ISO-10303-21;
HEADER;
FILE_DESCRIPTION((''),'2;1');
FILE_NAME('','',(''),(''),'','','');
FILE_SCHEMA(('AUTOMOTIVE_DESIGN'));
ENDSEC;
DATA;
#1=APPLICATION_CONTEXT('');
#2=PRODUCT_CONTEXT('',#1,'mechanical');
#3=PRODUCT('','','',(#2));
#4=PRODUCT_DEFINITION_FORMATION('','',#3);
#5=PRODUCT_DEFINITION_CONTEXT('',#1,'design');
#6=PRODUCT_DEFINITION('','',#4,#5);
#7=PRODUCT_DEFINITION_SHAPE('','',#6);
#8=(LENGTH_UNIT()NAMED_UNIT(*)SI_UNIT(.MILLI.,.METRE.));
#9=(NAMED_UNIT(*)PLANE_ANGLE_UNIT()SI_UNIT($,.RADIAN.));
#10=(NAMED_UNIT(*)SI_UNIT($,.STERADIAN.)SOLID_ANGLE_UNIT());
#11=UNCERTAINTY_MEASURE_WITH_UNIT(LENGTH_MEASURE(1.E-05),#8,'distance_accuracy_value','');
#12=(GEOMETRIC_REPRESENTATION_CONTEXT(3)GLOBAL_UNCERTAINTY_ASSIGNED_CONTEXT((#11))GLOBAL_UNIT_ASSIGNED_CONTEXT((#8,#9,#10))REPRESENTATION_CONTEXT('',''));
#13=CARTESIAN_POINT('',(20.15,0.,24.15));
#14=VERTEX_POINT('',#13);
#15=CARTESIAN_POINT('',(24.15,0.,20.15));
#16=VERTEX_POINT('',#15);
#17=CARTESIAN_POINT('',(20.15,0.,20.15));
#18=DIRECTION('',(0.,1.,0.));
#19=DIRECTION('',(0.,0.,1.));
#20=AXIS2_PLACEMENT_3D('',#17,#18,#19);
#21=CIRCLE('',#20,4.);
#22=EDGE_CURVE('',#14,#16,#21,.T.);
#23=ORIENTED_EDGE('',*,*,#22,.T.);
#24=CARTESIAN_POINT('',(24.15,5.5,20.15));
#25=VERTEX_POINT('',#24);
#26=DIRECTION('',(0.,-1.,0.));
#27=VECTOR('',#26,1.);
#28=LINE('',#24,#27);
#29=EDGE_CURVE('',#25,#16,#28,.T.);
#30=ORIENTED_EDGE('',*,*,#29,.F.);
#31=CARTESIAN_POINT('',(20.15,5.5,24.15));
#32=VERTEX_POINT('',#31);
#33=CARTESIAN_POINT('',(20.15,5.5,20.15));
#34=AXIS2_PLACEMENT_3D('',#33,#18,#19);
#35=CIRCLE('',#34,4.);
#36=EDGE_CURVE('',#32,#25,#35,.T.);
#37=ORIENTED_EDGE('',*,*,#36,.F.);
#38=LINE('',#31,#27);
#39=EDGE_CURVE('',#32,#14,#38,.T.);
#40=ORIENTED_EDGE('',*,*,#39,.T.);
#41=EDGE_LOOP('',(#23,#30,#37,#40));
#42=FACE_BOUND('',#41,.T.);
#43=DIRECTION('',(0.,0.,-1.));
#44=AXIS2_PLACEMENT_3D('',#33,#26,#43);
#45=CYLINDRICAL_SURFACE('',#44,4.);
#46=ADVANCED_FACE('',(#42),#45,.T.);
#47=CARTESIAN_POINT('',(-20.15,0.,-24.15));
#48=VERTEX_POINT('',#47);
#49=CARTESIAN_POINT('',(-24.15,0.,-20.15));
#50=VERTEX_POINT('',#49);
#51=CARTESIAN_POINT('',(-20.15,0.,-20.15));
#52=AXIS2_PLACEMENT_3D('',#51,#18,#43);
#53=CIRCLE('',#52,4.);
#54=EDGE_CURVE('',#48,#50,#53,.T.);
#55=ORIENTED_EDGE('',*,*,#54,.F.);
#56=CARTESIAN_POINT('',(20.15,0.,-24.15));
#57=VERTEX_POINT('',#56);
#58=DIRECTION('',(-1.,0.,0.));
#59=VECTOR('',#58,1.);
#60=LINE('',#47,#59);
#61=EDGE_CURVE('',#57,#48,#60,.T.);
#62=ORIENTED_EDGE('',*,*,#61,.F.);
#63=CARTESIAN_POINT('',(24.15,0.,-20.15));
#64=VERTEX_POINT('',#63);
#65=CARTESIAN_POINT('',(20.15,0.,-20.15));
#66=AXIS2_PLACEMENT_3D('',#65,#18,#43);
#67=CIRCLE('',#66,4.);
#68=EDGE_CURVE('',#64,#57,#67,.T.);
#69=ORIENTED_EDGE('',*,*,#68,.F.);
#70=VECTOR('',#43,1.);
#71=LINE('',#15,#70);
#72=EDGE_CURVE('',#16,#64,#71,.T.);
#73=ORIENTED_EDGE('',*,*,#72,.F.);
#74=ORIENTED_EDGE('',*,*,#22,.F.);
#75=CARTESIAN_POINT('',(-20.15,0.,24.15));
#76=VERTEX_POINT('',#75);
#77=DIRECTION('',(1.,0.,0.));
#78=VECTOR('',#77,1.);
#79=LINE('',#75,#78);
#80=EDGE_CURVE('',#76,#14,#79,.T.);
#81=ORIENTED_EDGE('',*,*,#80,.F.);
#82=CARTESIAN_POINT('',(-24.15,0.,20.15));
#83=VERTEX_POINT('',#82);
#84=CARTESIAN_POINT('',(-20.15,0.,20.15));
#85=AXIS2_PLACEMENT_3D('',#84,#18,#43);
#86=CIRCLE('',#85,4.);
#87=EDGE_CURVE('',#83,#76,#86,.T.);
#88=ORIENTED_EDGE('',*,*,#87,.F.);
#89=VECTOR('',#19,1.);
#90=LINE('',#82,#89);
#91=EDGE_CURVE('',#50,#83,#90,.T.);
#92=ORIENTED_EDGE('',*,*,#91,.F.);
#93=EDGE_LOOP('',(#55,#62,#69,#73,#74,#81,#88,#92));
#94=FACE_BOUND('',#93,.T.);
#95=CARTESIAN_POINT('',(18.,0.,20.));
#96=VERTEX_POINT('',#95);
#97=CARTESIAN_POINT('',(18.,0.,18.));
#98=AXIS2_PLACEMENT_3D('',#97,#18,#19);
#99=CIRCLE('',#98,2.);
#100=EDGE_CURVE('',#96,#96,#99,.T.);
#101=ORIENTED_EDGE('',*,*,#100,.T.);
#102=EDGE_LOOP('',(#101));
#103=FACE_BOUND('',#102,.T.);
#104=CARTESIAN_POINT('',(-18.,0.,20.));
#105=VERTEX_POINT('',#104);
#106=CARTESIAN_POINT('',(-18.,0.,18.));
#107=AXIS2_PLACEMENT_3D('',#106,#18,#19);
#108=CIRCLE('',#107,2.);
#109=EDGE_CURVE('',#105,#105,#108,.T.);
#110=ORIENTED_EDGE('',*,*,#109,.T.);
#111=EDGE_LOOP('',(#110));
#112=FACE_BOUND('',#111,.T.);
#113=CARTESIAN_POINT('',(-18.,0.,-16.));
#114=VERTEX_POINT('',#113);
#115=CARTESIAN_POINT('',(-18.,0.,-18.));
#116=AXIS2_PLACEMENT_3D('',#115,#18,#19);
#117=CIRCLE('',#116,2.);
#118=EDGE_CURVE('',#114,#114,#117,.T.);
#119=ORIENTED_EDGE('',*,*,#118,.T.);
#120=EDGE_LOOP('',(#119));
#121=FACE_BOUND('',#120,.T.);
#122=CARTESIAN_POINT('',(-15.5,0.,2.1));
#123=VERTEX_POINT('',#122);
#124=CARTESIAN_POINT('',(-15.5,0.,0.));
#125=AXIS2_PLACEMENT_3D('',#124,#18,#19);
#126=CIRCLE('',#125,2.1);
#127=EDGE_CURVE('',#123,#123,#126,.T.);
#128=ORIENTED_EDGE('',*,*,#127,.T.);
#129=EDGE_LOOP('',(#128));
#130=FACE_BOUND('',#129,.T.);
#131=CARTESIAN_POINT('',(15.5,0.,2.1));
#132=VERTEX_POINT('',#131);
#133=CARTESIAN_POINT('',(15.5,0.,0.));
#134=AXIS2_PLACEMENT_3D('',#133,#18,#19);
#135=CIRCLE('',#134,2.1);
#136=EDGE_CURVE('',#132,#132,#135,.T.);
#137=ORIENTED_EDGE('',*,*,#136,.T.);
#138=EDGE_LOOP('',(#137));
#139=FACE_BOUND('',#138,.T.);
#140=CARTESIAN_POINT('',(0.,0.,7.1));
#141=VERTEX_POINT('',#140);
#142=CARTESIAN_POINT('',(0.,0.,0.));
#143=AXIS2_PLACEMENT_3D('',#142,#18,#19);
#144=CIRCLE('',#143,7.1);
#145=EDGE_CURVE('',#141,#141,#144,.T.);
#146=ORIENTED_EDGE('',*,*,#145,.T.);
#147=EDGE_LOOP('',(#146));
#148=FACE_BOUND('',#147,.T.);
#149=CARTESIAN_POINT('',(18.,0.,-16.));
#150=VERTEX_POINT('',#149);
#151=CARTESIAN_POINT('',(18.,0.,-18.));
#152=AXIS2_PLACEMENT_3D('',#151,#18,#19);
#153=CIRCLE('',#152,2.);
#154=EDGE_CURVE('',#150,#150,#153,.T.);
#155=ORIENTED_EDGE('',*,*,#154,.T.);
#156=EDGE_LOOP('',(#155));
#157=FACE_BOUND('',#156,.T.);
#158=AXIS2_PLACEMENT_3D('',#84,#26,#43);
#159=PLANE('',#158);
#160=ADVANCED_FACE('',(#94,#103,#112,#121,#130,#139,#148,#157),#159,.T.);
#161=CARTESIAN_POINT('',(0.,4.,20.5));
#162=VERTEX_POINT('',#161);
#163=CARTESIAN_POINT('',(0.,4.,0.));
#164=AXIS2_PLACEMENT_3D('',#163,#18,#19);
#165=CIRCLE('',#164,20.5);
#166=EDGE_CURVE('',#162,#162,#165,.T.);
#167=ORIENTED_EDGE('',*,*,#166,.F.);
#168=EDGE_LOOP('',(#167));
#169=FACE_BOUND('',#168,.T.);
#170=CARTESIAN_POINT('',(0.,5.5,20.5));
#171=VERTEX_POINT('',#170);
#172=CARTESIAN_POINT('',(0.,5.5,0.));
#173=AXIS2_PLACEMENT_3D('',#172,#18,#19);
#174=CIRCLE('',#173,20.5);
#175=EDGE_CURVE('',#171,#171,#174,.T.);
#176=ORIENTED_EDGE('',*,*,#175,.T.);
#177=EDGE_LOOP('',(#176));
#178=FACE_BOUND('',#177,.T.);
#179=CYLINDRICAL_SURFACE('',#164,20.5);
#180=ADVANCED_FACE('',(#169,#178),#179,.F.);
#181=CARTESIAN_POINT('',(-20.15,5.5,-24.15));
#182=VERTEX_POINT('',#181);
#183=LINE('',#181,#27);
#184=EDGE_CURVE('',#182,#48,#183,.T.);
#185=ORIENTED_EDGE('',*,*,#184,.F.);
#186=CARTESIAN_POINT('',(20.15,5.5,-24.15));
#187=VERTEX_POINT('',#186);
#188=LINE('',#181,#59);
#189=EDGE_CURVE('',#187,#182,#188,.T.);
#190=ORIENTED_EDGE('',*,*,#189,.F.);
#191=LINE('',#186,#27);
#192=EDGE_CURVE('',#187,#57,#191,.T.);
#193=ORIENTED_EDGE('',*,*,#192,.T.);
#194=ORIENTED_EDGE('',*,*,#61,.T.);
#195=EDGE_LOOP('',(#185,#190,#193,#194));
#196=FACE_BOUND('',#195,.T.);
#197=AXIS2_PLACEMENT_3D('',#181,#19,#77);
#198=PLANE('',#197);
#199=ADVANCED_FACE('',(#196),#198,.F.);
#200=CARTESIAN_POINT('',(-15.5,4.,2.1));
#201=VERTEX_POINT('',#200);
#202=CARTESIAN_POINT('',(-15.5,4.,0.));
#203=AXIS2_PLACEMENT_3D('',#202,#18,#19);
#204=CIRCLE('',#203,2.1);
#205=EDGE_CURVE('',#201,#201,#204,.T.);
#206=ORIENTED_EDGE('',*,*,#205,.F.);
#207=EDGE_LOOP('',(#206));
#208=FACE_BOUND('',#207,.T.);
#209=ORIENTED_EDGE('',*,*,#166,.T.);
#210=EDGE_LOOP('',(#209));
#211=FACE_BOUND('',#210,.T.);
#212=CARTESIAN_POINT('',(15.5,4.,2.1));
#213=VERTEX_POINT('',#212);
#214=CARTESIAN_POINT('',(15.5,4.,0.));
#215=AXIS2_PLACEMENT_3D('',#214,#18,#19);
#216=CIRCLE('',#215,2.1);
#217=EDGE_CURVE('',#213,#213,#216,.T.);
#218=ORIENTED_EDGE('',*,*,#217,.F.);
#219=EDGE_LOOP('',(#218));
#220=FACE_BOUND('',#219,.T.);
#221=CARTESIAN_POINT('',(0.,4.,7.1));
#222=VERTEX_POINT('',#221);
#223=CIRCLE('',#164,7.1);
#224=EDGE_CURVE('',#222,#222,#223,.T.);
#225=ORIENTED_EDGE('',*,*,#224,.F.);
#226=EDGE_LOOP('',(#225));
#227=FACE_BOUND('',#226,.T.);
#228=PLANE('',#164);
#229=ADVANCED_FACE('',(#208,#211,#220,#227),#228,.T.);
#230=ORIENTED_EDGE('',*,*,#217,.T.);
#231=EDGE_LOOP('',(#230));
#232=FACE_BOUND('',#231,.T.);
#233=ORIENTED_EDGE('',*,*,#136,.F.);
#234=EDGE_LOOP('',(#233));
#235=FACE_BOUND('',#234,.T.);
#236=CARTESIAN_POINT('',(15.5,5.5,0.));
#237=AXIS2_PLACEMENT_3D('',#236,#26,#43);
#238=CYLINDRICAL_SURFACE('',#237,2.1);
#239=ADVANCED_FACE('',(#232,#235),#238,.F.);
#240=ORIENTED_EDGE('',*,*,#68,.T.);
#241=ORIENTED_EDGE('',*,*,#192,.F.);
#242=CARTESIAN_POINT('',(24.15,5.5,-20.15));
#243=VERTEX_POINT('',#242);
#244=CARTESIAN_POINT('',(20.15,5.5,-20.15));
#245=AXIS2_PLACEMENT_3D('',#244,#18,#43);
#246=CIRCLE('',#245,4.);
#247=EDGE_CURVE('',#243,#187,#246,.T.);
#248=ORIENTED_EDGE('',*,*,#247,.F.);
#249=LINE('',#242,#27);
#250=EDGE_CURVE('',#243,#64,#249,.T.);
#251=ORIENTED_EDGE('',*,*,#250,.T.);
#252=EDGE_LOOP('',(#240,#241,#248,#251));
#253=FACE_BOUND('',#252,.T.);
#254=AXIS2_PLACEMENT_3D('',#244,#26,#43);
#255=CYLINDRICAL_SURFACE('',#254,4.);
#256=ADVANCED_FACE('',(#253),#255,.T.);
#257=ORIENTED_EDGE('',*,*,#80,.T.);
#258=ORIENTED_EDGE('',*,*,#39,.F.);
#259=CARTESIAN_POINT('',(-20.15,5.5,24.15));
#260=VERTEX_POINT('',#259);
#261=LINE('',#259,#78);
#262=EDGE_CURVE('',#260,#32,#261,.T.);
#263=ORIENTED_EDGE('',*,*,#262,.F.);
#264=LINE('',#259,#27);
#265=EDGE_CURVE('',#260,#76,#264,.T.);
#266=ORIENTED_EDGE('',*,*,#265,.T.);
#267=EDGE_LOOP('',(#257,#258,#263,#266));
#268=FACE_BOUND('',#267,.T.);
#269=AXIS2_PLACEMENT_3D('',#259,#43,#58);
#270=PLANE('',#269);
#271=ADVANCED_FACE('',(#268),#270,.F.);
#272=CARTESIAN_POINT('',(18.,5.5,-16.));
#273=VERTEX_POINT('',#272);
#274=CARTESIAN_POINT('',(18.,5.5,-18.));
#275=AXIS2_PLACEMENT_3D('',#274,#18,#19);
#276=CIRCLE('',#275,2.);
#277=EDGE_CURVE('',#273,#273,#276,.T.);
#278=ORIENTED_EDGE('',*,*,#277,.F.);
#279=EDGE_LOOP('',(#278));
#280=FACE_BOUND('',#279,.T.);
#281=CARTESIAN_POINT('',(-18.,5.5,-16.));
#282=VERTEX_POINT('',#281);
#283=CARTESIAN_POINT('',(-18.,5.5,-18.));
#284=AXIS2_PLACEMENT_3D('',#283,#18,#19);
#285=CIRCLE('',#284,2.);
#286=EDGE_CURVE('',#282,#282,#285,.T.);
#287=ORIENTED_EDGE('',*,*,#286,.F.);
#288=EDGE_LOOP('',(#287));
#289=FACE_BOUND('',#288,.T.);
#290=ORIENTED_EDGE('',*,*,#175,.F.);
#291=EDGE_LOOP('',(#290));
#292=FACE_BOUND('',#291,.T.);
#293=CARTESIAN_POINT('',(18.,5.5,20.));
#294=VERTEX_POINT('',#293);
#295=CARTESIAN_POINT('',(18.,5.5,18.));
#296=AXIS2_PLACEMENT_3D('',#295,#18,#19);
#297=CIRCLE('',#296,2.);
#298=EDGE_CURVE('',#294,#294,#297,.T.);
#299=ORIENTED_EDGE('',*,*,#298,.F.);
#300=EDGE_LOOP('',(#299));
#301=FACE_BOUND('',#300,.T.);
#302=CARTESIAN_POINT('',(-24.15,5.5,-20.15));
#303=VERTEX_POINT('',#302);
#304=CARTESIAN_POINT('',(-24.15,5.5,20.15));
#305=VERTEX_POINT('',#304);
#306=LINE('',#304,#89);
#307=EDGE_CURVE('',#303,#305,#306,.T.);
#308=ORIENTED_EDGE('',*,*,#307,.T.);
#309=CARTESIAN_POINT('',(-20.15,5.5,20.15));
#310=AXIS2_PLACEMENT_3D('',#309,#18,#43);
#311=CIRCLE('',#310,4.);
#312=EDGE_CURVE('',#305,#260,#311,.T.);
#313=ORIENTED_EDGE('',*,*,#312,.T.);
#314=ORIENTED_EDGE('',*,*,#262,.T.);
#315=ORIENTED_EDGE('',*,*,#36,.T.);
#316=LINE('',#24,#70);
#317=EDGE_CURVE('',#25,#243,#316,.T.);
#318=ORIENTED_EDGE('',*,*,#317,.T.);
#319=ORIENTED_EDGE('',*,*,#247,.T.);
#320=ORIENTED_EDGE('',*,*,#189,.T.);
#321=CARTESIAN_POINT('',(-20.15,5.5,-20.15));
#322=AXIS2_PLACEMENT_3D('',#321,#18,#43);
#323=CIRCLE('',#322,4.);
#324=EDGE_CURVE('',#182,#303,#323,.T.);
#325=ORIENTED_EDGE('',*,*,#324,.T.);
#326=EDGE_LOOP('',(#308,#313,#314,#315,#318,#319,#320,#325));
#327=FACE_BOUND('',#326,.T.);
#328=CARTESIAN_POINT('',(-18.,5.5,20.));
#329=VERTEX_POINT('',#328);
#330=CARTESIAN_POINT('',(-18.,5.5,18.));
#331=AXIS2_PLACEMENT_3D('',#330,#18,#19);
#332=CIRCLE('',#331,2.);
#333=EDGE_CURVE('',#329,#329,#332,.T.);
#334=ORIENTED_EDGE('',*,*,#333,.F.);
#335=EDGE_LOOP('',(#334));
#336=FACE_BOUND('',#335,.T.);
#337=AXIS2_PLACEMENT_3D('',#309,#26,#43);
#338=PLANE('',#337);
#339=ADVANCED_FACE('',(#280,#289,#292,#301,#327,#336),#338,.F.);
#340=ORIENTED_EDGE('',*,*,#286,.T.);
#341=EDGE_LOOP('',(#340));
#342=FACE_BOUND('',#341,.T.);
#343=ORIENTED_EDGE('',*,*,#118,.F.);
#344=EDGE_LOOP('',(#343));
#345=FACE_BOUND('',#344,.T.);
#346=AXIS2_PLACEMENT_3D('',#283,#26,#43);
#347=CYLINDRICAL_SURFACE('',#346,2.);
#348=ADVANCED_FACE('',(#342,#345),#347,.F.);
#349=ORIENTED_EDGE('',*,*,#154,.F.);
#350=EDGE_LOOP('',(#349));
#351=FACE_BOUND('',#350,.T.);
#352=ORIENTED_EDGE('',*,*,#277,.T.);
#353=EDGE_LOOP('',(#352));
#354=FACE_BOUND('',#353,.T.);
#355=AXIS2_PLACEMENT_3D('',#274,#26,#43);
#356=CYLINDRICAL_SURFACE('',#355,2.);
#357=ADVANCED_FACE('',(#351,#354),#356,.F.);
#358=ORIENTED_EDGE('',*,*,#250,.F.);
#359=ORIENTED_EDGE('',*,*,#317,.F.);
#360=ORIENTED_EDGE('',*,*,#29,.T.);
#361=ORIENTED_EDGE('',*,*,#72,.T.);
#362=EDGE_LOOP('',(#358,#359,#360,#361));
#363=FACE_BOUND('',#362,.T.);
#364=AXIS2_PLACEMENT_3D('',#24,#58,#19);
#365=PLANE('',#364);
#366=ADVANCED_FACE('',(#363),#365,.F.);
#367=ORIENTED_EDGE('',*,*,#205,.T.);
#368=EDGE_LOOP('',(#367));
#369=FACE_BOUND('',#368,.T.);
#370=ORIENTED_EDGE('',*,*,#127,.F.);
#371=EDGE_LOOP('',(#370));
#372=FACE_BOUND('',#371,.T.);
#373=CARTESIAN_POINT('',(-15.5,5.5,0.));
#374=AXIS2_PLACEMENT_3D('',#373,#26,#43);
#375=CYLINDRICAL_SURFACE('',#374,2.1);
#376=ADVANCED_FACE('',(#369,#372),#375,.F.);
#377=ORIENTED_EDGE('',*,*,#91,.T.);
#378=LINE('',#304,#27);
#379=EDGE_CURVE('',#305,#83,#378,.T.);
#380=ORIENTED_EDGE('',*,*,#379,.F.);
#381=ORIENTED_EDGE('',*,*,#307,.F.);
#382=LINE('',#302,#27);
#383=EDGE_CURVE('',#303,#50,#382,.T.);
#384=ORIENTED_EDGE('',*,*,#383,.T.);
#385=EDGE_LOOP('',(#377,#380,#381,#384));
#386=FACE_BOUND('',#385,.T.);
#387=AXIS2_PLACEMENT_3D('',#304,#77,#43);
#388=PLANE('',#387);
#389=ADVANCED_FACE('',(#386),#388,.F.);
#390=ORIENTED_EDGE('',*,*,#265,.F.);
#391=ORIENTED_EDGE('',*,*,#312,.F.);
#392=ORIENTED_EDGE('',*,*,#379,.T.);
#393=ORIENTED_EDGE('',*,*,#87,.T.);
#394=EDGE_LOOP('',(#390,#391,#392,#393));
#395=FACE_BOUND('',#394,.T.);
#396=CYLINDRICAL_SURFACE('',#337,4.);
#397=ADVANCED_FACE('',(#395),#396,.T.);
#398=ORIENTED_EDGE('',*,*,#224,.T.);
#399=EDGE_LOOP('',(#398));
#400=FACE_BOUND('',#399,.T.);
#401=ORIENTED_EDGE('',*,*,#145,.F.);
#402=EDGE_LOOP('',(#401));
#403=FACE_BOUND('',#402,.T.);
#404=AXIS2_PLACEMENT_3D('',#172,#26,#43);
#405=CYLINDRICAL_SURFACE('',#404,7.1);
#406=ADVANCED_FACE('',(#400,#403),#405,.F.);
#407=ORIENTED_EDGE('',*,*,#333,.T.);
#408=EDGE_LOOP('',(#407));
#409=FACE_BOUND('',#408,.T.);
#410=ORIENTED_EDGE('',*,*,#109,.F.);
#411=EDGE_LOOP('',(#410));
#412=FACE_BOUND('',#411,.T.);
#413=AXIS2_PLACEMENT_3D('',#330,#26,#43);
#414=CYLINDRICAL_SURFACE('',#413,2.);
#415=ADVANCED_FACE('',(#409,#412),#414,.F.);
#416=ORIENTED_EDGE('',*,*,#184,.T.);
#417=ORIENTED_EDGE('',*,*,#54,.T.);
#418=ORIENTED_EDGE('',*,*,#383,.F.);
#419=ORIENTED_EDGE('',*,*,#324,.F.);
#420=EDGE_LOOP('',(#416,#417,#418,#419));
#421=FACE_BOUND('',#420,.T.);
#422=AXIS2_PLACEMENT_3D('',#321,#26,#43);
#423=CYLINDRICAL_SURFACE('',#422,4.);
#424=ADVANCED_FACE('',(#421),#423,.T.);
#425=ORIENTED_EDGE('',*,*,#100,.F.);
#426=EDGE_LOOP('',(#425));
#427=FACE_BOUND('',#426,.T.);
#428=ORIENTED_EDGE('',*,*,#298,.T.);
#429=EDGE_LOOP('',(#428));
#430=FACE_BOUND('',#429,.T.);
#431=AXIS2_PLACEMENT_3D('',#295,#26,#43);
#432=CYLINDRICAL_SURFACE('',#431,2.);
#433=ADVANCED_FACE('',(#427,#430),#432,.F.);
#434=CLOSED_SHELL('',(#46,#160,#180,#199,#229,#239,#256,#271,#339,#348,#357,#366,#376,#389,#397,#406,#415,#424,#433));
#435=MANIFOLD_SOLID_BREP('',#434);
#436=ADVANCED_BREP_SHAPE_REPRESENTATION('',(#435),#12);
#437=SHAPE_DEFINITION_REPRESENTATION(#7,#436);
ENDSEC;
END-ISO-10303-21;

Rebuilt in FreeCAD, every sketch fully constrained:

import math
import FreeCAD as App
import Part
import Sketcher

V = App.Vector
Q = App.Units.Quantity

doc = App.newDocument("Part")
body = doc.addObject("PartDesign::Body", "Body")

# Sketch on XZ plane
sketch1 = body.newObject("Sketcher::SketchObject", "Sketch")
sketch1.AttachmentSupport = (doc.getObject("XZ_Plane"), [""])
sketch1.MapMode = "FlatFace"
sketch1.addGeometry(Part.LineSegment(V(-20.15, 24.15, 0), V(20.15, 24.15, 0)), False)
sketch1.addGeometry(Part.ArcOfCircle(Part.Circle(V(20.15, 20.15, 0), V(0, 0, 1), 4), math.radians(0), math.radians(90)), False)
sketch1.addGeometry(Part.LineSegment(V(24.15, 20.15, 0), V(24.15, -20.15, 0)), False)
sketch1.addGeometry(Part.ArcOfCircle(Part.Circle(V(20.15, -20.15, 0), V(0, 0, 1), 4), math.radians(-90), math.radians(0)), False)
sketch1.addGeometry(Part.LineSegment(V(20.15, -24.15, 0), V(-20.15, -24.15, 0)), False)
sketch1.addGeometry(Part.ArcOfCircle(Part.Circle(V(-20.15, -20.15, 0), V(0, 0, 1), 4), math.radians(180), math.radians(270)), False)
sketch1.addGeometry(Part.LineSegment(V(-24.15, -20.15, 0), V(-24.15, 20.15, 0)), False)
sketch1.addGeometry(Part.ArcOfCircle(Part.Circle(V(-20.15, 20.15, 0), V(0, 0, 1), 4), math.radians(90), math.radians(180)), False)
sketch1.addGeometry(Part.Circle(V(-18, 18, 0), V(0, 0, 1), 2), False)
sketch1.addGeometry(Part.Circle(V(18, 18, 0), V(0, 0, 1), 2), False)
sketch1.addGeometry(Part.Circle(V(-15.5, 0, 0), V(0, 0, 1), 2.1), False)
sketch1.addGeometry(Part.Circle(V(-18, -18, 0), V(0, 0, 1), 2), False)
sketch1.addGeometry(Part.Circle(V(0, 0, 0), V(0, 0, 1), 7.1), False)
sketch1.addGeometry(Part.Circle(V(15.5, 0, 0), V(0, 0, 1), 2.1), False)
sketch1.addGeometry(Part.Circle(V(18, -18, 0), V(0, 0, 1), 2), False)
sketch1.addConstraint(Sketcher.Constraint("Tangent", 0, 2, 1, 2))
sketch1.addConstraint(Sketcher.Constraint("Tangent", 1, 1, 2, 1))
sketch1.addConstraint(Sketcher.Constraint("Tangent", 2, 2, 3, 2))
sketch1.addConstraint(Sketcher.Constraint("Tangent", 3, 1, 4, 1))
sketch1.addConstraint(Sketcher.Constraint("Tangent", 4, 2, 5, 2))
sketch1.addConstraint(Sketcher.Constraint("Tangent", 5, 1, 6, 1))
sketch1.addConstraint(Sketcher.Constraint("Tangent", 6, 2, 7, 2))
sketch1.addConstraint(Sketcher.Constraint("Tangent", 7, 1, 0, 1))
sketch1.addConstraint(Sketcher.Constraint("Horizontal", 0))
sketch1.addConstraint(Sketcher.Constraint("Vertical", 2))
sketch1.addConstraint(Sketcher.Constraint("Horizontal", 4))
sketch1.addConstraint(Sketcher.Constraint("Vertical", 6))
sketch1.addConstraint(Sketcher.Constraint("Coincident", 12, 3, -1, 1))
sketch1.addConstraint(Sketcher.Constraint("Equal", 1, 3))
sketch1.addConstraint(Sketcher.Constraint("Equal", 3, 5))
sketch1.addConstraint(Sketcher.Constraint("Equal", 5, 7))
sketch1.addConstraint(Sketcher.Constraint("Equal", 8, 9))
sketch1.addConstraint(Sketcher.Constraint("Equal", 9, 11))
sketch1.addConstraint(Sketcher.Constraint("Equal", 10, 13))
sketch1.addConstraint(Sketcher.Constraint("Equal", 11, 14))
sketch1.addConstraint(Sketcher.Constraint("Symmetric", 1, 3, 5, 3, -1, 1))
sketch1.addConstraint(Sketcher.Constraint("Symmetric", 9, 3, 11, 3, -1, 1))
sketch1.addConstraint(Sketcher.Constraint("Symmetric", 10, 3, 13, 3, -1, 1))
sketch1.addConstraint(Sketcher.Constraint("Symmetric", 8, 3, 14, 3, -1, 1))
sketch1.addConstraint(Sketcher.Constraint("Symmetric", 8, 3, 9, 3, -2))
sketch1.addConstraint(Sketcher.Constraint("PointOnObject", 10, 3, -1))
sketch1.addConstraint(Sketcher.Constraint("Equal", 4, 2))
sketch1.addConstraint(Sketcher.Constraint("Diameter", 8, Q("4 mm")))
sketch1.addConstraint(Sketcher.Constraint("Radius", 1, Q("4 mm")))
sketch1.addConstraint(Sketcher.Constraint("Diameter", 10, Q("4.2 mm")))
sketch1.addConstraint(Sketcher.Constraint("Diameter", 12, Q("14.2 mm")))
sketch1.addConstraint(Sketcher.Constraint("DistanceX", 0, 1, 0, 2, Q("40.3 mm")))
sketch1.addConstraint(Sketcher.Constraint("DistanceX", 8, 3, -1, 1, Q("18 mm")))
sketch1.addConstraint(Sketcher.Constraint("DistanceY", -1, 1, 8, 3, Q("18 mm")))
sketch1.addConstraint(Sketcher.Constraint("DistanceX", 10, 3, 13, 3, Q("31 mm")))
pad1 = body.newObject("PartDesign::Pad", "Pad")
pad1.Profile = sketch1
pad1.Length = 5.5
pad1.Reversed = True

# Sketch on XZ plane
sketch2 = body.newObject("Sketcher::SketchObject", "Sketch001")
sketch2.AttachmentSupport = (doc.getObject("XZ_Plane"), [""])
sketch2.MapMode = "FlatFace"
sketch2.AttachmentOffset = App.Placement(V(0, 0, -5.5), App.Rotation())
sketch2.addGeometry(Part.Circle(V(0, 0, 0), V(0, 0, 1), 20.5), False)
sketch2.addConstraint(Sketcher.Constraint("Coincident", 0, 3, -1, 1))
sketch2.addConstraint(Sketcher.Constraint("Diameter", 0, Q("41 mm")))
pocket1 = body.newObject("PartDesign::Pocket", "Pocket")
pocket1.Profile = sketch2
pocket1.Length = 1.5
pocket1.Reversed = True

doc.recompute()
